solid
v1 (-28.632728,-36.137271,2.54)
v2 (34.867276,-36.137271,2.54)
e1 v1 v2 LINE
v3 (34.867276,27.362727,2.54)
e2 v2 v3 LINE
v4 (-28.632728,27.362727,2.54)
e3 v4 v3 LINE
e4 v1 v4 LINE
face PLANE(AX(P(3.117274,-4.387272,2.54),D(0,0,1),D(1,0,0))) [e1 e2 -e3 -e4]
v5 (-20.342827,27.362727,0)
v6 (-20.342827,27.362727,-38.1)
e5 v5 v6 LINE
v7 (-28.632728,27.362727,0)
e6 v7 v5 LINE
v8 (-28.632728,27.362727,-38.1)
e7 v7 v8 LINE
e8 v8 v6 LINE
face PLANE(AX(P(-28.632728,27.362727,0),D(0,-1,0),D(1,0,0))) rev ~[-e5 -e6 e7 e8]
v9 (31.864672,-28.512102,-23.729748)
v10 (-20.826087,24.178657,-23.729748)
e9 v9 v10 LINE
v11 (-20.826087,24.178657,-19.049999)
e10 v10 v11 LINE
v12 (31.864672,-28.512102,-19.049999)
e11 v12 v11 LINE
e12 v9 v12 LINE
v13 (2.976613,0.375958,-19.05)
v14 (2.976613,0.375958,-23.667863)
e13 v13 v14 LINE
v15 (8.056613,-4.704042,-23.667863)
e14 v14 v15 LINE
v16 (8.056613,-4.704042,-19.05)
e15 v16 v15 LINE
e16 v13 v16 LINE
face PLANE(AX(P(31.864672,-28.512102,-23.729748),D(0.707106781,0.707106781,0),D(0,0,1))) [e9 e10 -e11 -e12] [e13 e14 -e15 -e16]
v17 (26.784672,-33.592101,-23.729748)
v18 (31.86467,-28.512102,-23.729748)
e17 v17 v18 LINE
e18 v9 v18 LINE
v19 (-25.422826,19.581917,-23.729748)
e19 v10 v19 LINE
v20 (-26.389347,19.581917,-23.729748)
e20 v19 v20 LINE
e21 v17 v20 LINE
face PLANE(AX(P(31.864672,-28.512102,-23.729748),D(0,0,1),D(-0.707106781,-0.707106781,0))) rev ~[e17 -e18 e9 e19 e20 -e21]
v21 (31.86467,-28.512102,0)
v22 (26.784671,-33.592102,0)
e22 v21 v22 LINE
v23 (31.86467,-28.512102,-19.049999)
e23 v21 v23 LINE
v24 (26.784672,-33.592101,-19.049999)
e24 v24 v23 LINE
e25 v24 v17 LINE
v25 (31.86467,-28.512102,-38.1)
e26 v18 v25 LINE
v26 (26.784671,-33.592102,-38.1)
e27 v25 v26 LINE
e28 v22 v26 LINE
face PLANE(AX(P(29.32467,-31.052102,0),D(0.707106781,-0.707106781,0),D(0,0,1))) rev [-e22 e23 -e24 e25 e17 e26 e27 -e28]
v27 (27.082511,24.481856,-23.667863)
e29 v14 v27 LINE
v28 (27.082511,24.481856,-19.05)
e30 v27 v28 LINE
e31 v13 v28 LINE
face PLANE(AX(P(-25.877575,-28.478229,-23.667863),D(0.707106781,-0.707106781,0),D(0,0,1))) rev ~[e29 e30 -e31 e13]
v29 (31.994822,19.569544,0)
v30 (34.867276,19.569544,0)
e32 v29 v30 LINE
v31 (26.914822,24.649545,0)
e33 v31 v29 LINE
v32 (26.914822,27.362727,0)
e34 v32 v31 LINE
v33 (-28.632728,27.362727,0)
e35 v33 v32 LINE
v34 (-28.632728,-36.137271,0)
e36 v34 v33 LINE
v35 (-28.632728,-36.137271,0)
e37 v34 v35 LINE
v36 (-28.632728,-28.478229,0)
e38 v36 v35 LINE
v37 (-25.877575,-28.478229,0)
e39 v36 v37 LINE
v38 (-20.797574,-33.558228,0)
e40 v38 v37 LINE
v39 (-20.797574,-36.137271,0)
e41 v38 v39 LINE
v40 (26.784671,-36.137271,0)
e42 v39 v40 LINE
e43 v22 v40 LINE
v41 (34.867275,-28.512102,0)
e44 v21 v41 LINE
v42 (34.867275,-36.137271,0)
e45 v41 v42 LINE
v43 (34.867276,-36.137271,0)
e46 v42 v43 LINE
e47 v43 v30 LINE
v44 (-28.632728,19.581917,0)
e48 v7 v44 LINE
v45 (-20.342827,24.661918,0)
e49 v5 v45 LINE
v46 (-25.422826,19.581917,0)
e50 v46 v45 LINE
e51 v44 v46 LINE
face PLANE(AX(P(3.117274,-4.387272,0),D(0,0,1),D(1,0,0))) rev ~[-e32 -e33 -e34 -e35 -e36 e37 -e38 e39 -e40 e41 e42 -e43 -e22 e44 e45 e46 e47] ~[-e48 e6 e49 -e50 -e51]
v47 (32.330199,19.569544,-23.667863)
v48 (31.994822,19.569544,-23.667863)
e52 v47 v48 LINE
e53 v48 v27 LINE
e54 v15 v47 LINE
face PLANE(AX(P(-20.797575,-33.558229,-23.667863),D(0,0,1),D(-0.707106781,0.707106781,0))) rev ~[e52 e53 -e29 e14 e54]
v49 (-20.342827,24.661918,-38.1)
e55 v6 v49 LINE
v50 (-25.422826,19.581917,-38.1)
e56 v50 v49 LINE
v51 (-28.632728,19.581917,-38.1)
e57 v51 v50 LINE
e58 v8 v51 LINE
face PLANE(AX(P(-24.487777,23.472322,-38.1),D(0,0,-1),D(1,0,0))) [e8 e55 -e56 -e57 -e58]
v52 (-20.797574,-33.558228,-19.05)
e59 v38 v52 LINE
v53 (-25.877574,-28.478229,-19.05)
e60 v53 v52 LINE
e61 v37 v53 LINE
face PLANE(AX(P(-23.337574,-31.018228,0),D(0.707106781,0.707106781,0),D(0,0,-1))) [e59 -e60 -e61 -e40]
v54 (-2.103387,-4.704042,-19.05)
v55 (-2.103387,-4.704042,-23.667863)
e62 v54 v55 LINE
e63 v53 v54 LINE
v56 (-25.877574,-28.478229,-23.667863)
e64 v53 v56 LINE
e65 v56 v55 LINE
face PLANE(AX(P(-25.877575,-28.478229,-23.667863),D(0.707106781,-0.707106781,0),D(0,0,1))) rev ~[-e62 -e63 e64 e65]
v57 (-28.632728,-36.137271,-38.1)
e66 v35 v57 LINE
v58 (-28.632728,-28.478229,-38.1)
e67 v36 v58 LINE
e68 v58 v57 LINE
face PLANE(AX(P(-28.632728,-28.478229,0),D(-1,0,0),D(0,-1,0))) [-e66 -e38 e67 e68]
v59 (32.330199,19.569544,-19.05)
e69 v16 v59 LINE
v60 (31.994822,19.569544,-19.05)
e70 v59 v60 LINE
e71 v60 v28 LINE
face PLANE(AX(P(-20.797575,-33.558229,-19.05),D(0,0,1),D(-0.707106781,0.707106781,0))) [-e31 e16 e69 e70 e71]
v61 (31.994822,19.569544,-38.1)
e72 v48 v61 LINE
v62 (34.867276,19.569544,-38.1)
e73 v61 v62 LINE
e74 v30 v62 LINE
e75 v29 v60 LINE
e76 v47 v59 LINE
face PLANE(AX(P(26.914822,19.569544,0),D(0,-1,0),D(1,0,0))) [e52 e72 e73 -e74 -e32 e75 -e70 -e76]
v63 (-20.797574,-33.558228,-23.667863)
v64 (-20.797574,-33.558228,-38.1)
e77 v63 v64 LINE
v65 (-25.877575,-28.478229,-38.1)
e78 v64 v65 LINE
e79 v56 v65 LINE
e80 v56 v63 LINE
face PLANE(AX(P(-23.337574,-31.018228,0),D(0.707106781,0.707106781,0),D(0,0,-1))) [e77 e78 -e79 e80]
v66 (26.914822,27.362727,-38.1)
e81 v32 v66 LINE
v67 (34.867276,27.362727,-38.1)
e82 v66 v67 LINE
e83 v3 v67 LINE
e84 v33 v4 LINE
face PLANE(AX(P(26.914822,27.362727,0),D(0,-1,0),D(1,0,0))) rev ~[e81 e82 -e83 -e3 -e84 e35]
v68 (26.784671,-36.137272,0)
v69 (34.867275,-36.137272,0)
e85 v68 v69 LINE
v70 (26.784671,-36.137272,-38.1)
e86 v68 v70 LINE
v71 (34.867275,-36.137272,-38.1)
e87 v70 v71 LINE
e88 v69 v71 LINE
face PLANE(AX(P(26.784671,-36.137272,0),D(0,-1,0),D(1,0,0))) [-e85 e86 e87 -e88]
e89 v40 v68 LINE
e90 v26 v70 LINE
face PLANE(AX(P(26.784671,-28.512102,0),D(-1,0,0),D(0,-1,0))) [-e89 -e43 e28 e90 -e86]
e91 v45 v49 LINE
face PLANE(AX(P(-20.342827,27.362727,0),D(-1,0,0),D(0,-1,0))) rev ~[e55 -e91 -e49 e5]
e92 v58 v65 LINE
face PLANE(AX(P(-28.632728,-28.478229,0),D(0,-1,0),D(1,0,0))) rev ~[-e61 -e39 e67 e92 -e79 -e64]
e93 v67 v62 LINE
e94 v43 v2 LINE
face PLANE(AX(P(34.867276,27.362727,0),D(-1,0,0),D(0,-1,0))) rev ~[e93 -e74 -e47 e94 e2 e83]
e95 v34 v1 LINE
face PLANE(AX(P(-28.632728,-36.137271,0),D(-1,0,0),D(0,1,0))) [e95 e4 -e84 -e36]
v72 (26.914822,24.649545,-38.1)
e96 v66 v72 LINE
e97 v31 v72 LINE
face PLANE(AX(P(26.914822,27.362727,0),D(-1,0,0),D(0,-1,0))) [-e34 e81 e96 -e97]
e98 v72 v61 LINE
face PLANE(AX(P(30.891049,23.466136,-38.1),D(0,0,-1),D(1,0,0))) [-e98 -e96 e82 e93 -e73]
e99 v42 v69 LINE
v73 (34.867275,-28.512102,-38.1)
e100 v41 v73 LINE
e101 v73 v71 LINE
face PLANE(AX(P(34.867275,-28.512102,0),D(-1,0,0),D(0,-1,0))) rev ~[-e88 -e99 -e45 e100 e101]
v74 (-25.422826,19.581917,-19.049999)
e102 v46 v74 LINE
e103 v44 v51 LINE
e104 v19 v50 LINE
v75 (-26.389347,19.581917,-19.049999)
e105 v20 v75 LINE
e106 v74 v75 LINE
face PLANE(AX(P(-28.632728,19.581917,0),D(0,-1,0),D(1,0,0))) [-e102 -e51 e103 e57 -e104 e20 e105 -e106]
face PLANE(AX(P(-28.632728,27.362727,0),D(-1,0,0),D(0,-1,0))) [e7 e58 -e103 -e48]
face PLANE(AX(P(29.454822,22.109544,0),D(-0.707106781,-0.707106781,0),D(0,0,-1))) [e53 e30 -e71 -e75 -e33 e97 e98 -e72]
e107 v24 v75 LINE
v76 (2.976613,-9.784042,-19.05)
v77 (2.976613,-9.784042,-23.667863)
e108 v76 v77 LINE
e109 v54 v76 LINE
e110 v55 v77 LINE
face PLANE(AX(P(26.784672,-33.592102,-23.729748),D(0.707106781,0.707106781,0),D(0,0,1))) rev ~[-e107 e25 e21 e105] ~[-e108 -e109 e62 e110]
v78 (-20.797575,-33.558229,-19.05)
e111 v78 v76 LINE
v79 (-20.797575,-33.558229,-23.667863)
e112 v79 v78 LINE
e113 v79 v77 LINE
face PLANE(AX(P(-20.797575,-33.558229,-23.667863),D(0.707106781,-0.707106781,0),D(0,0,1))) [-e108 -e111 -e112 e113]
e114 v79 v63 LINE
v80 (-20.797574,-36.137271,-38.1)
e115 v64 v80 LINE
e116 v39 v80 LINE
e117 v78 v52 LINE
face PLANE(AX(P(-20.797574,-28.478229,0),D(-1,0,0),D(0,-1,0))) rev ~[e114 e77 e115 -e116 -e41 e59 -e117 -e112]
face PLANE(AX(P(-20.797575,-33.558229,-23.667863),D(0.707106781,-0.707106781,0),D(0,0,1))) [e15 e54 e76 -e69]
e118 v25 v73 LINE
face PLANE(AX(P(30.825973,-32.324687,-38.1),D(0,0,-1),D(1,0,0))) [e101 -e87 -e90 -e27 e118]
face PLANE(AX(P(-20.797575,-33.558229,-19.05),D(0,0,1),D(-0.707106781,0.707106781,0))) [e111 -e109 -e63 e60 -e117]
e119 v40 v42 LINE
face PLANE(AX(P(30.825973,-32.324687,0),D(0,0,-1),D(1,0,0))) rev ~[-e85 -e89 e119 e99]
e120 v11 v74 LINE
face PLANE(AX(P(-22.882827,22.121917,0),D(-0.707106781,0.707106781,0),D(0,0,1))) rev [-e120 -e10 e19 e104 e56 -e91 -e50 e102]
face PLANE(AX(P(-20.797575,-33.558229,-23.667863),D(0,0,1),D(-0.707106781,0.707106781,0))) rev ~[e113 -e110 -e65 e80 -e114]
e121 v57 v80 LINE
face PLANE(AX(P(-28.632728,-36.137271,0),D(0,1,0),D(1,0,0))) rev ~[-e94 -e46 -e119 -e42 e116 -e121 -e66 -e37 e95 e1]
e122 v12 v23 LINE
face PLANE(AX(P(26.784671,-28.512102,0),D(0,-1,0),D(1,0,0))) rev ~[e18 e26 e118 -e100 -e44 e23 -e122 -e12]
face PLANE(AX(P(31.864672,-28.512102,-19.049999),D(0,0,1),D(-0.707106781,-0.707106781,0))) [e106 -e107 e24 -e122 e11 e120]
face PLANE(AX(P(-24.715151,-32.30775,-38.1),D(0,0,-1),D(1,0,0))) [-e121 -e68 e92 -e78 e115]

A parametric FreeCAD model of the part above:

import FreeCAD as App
import Part
import Sketcher
from FreeCAD import Vector
Q = App.Units.Quantity


def edges_at(feature, points):
    """Names of the edges that pass closest to the given points."""
    edges = feature.Shape.Edges
    near = lambda p: min(range(len(edges)), key=lambda i: edges[i].distToShape(Part.Vertex(*p))[0])
    return sorted({f"Edge{near(p) + 1}" for p in points})


def add_polygon(sketch, points):
    """Adds a closed chain of lines whose ends are joined by coincident constraints."""
    first, n = sketch.GeometryCount, len(points)
    for a, b in zip(points, points[1:] + points[:1]):
        sketch.addGeometry(Part.LineSegment(App.Vector(*a, 0), App.Vector(*b, 0)), False)
    for i in range(n):
        sketch.addConstraint(Sketcher.Constraint("Coincident", first + i, 2, first + (i + 1) % n, 1))

doc = App.newDocument("Part")
body = doc.addObject("PartDesign::Body", "Body")

sketch1 = body.newObject("Sketcher::SketchObject", "Sketch")
sketch1.AttachmentSupport = (doc.getObject("XY_Plane"), [""])
sketch1.MapMode = "FlatFace"
add_polygon(sketch1, [(-29, 27), (-29, -36), (35, -36), (35, 27)])
sketch1.addConstraint([
    Sketcher.Constraint("Vertical", 0),
    Sketcher.Constraint("Horizontal", 1),
    Sketcher.Constraint("Vertical", 2),
    Sketcher.Constraint("Horizontal", 3),
    Sketcher.Constraint("DistanceX", 1, 1, 1, 2, Q("2.5000002 in")),
    Sketcher.Constraint("DistanceY", 0, 2, 0, 1, Q("2.5 in")),
    Sketcher.Constraint("DistanceX", 0, 2, -1, 1, 28.632728),
    Sketcher.Constraint("DistanceY", 0, 2, -1, 1, 36.137271),
])
pad1 = body.newObject("PartDesign::Pad", "Pad")
pad1.Profile = sketch1
pad1.Length = Q("0.1 in")

sketch2 = body.newObject("Sketcher::SketchObject", "Sketch001")
sketch2.AttachmentSupport = (doc.getObject("XY_Plane"), [""])
sketch2.MapMode = "FlatFace"
add_polygon(sketch2, [(-29, -36), (-29, -28), (-21, -28), (-21, -36)])
sketch2.addConstraint([
    Sketcher.Constraint("Vertical", 0),
    Sketcher.Constraint("Horizontal", 1),
    Sketcher.Constraint("Vertical", 2),
    Sketcher.Constraint("Horizontal", 3),
    Sketcher.Constraint("DistanceX", 1, 1, 1, 2, 7.835153),
    Sketcher.Constraint("DistanceY", 0, 1, 0, 2, 7.659043),
    Sketcher.Constraint("DistanceY", 0, 2, -1, 1, 28.478229),
    Sketcher.Constraint("DistanceX", 0, 2, -1, 1, 28.632728),
])
pad2 = body.newObject("PartDesign::Pad", "Pad001")
pad2.Profile = sketch2
pad2.Length = Q("1.5 in")
pad2.Reversed = True

sketch3 = body.newObject("Sketcher::SketchObject", "Sketch002")
sketch3.AttachmentSupport = (doc.getObject("XY_Plane"), [""])
sketch3.MapMode = "FlatFace"
add_polygon(sketch3, [(-29, 20), (-29, 27), (-20, 27), (-20, 20)])
sketch3.addConstraint([
    Sketcher.Constraint("Vertical", 0),
    Sketcher.Constraint("Horizontal", 1),
    Sketcher.Constraint("Vertical", 2),
    Sketcher.Constraint("Horizontal", 3),
    Sketcher.Constraint("DistanceX", 1, 1, 1, 2, 8.289901),
    Sketcher.Constraint("DistanceY", 0, 1, 0, 2, 7.780809),
    Sketcher.Constraint("DistanceX", 0, 2, -1, 1, 28.632728),
    Sketcher.Constraint("DistanceY", -1, 1, 0, 2, 27.362727),
])
pad3 = body.newObject("PartDesign::Pad", "Pad002")
pad3.Profile = sketch3
pad3.Length = Q("1.5 in")
pad3.Reversed = True

sketch4 = body.newObject("Sketcher::SketchObject", "Sketch003")
sketch4.AttachmentSupport = (doc.getObject("XY_Plane"), [""])
sketch4.MapMode = "FlatFace"
add_polygon(sketch4, [(27, 20), (27, 27), (35, 27), (35, 20)])
sketch4.addConstraint([
    Sketcher.Constraint("Vertical", 0),
    Sketcher.Constraint("Horizontal", 1),
    Sketcher.Constraint("Vertical", 2),
    Sketcher.Constraint("Horizontal", 3),
    Sketcher.Constraint("DistanceX", 1, 1, 1, 2, 7.952454),
    Sketcher.Constraint("DistanceY", 0, 1, 0, 2, 7.793183),
    Sketcher.Constraint("DistanceX", -1, 1, 0, 2, 26.914822),
    Sketcher.Constraint("DistanceY", -1, 1, 0, 2, 27.362727),
])
pad4 = body.newObject("PartDesign::Pad", "Pad003")
pad4.Profile = sketch4
pad4.Length = Q("1.5 in")
pad4.Reversed = True

sketch5 = body.newObject("Sketcher::SketchObject", "Sketch004")
sketch5.AttachmentSupport = (doc.getObject("XY_Plane"), [""])
sketch5.MapMode = "FlatFace"
add_polygon(sketch5, [(27, -36), (27, -29), (35, -29), (35, -36)])
sketch5.addConstraint([
    Sketcher.Constraint("Vertical", 0),
    Sketcher.Constraint("Horizontal", 1),
    Sketcher.Constraint("Vertical", 2),
    Sketcher.Constraint("Horizontal", 3),
    Sketcher.Constraint("DistanceY", 0, 1, 0, 2, 7.62517),
    Sketcher.Constraint("DistanceY", 0, 2, -1, 1, 28.512102),
    Sketcher.Constraint("DistanceX", 1, 1, 1, 2, 8.082605),
    Sketcher.Constraint("DistanceX", -1, 1, 0, 2, 26.784671),
])
pad5 = body.newObject("PartDesign::Pad", "Pad004")
pad5.Profile = sketch5
pad5.Length = Q("1.5 in")
pad5.Reversed = True
doc.recompute()

chamfer = body.newObject("PartDesign::Chamfer", "Chamfer")
chamfer.Base = (pad5, edges_at(pad5, [(-20.798, -28.478, -19.05)]))
chamfer.Size = Q("0.2 in")
doc.recompute()

chamfer2 = body.newObject("PartDesign::Chamfer", "Chamfer001")
chamfer2.Base = (chamfer, edges_at(chamfer, [(26.915, 19.57, -19.05)]))
chamfer2.Size = Q("0.2 in")
doc.recompute()

chamfer3 = body.newObject("PartDesign::Chamfer", "Chamfer002")
chamfer3.Base = (chamfer2, edges_at(chamfer2, [(-20.343, 19.582, -19.05)]))
chamfer3.Size = Q("0.2 in")
doc.recompute()

chamfer4 = body.newObject("PartDesign::Chamfer", "Chamfer003")
chamfer4.Base = (chamfer3, edges_at(chamfer3, [(26.785, -28.512, -19.05)]))
chamfer4.Size = Q("0.2 in")

sketch6 = body.newObject("Sketcher::SketchObject", "Sketch005")
sketch6.Placement = App.Placement(Vector(30.188387, -30.188387, 0), App.Rotation(Vector(-0.707106781, -0.707106781, 0), Vector(0, 0, 0.999999999), Vector(-0.707106781, 0.707106781, 0), "ZXY"))
add_polygon(sketch6, [(-2.4, -19), (-2.4, -23.7), (4.8, -23.7), (4.8, -19)])
sketch6.addConstraint([
    Sketcher.Constraint("Vertical", 0),
    Sketcher.Constraint("Horizontal", 1),
    Sketcher.Constraint("Vertical", 2),
    Sketcher.Constraint("Horizontal", 3),
    Sketcher.Constraint("DistanceY", 2, 2, -1, 1, Q("0.75 in")),
    Sketcher.Constraint("DistanceY", 0, 2, 0, 1, 4.679749),
    Sketcher.Constraint("DistanceX", 1, 1, 1, 2, 7.184205),
    Sketcher.Constraint("DistanceX", -1, 1, 1, 2, 4.813579),
])
pad6 = body.newObject("PartDesign::Pad", "Pad005")
pad6.Profile = sketch6
pad6.Length = Q("2.99 in")

sketch7 = body.newObject("Sketcher::SketchObject", "Sketch006")
sketch7.Placement = App.Placement(Vector(-27.177902, -27.177902, 0), App.Rotation(Vector(-0.707106781, 0.707106781, 0), Vector(0, 0, 0.999999999), Vector(0.707106781, 0.707106781, 0), "ZXY"))
add_polygon(sketch7, [(-9, -19.1), (-9, -23.7), (-1.8, -23.7), (-1.8, -19.1)])
sketch7.addConstraint([
    Sketcher.Constraint("Vertical", 0),
    Sketcher.Constraint("Horizontal", 1),
    Sketcher.Constraint("Vertical", 2),
    Sketcher.Constraint("Horizontal", 3),
    Sketcher.Constraint("DistanceY", 2, 2, -1, 1, Q("0.75 in")),
    Sketcher.Constraint("DistanceX", 1, 1, 1, 2, 7.184205),
    Sketcher.Constraint("DistanceY", 0, 2, 0, 1, 4.617863),
    Sketcher.Constraint("DistanceX", 1, 2, -1, 1, 1.83894),
])
pad7 = body.newObject("PartDesign::Pad", "Pad006")
pad7.Profile = sketch7
pad7.Length = Q("3.08 in")

doc.recompute()
